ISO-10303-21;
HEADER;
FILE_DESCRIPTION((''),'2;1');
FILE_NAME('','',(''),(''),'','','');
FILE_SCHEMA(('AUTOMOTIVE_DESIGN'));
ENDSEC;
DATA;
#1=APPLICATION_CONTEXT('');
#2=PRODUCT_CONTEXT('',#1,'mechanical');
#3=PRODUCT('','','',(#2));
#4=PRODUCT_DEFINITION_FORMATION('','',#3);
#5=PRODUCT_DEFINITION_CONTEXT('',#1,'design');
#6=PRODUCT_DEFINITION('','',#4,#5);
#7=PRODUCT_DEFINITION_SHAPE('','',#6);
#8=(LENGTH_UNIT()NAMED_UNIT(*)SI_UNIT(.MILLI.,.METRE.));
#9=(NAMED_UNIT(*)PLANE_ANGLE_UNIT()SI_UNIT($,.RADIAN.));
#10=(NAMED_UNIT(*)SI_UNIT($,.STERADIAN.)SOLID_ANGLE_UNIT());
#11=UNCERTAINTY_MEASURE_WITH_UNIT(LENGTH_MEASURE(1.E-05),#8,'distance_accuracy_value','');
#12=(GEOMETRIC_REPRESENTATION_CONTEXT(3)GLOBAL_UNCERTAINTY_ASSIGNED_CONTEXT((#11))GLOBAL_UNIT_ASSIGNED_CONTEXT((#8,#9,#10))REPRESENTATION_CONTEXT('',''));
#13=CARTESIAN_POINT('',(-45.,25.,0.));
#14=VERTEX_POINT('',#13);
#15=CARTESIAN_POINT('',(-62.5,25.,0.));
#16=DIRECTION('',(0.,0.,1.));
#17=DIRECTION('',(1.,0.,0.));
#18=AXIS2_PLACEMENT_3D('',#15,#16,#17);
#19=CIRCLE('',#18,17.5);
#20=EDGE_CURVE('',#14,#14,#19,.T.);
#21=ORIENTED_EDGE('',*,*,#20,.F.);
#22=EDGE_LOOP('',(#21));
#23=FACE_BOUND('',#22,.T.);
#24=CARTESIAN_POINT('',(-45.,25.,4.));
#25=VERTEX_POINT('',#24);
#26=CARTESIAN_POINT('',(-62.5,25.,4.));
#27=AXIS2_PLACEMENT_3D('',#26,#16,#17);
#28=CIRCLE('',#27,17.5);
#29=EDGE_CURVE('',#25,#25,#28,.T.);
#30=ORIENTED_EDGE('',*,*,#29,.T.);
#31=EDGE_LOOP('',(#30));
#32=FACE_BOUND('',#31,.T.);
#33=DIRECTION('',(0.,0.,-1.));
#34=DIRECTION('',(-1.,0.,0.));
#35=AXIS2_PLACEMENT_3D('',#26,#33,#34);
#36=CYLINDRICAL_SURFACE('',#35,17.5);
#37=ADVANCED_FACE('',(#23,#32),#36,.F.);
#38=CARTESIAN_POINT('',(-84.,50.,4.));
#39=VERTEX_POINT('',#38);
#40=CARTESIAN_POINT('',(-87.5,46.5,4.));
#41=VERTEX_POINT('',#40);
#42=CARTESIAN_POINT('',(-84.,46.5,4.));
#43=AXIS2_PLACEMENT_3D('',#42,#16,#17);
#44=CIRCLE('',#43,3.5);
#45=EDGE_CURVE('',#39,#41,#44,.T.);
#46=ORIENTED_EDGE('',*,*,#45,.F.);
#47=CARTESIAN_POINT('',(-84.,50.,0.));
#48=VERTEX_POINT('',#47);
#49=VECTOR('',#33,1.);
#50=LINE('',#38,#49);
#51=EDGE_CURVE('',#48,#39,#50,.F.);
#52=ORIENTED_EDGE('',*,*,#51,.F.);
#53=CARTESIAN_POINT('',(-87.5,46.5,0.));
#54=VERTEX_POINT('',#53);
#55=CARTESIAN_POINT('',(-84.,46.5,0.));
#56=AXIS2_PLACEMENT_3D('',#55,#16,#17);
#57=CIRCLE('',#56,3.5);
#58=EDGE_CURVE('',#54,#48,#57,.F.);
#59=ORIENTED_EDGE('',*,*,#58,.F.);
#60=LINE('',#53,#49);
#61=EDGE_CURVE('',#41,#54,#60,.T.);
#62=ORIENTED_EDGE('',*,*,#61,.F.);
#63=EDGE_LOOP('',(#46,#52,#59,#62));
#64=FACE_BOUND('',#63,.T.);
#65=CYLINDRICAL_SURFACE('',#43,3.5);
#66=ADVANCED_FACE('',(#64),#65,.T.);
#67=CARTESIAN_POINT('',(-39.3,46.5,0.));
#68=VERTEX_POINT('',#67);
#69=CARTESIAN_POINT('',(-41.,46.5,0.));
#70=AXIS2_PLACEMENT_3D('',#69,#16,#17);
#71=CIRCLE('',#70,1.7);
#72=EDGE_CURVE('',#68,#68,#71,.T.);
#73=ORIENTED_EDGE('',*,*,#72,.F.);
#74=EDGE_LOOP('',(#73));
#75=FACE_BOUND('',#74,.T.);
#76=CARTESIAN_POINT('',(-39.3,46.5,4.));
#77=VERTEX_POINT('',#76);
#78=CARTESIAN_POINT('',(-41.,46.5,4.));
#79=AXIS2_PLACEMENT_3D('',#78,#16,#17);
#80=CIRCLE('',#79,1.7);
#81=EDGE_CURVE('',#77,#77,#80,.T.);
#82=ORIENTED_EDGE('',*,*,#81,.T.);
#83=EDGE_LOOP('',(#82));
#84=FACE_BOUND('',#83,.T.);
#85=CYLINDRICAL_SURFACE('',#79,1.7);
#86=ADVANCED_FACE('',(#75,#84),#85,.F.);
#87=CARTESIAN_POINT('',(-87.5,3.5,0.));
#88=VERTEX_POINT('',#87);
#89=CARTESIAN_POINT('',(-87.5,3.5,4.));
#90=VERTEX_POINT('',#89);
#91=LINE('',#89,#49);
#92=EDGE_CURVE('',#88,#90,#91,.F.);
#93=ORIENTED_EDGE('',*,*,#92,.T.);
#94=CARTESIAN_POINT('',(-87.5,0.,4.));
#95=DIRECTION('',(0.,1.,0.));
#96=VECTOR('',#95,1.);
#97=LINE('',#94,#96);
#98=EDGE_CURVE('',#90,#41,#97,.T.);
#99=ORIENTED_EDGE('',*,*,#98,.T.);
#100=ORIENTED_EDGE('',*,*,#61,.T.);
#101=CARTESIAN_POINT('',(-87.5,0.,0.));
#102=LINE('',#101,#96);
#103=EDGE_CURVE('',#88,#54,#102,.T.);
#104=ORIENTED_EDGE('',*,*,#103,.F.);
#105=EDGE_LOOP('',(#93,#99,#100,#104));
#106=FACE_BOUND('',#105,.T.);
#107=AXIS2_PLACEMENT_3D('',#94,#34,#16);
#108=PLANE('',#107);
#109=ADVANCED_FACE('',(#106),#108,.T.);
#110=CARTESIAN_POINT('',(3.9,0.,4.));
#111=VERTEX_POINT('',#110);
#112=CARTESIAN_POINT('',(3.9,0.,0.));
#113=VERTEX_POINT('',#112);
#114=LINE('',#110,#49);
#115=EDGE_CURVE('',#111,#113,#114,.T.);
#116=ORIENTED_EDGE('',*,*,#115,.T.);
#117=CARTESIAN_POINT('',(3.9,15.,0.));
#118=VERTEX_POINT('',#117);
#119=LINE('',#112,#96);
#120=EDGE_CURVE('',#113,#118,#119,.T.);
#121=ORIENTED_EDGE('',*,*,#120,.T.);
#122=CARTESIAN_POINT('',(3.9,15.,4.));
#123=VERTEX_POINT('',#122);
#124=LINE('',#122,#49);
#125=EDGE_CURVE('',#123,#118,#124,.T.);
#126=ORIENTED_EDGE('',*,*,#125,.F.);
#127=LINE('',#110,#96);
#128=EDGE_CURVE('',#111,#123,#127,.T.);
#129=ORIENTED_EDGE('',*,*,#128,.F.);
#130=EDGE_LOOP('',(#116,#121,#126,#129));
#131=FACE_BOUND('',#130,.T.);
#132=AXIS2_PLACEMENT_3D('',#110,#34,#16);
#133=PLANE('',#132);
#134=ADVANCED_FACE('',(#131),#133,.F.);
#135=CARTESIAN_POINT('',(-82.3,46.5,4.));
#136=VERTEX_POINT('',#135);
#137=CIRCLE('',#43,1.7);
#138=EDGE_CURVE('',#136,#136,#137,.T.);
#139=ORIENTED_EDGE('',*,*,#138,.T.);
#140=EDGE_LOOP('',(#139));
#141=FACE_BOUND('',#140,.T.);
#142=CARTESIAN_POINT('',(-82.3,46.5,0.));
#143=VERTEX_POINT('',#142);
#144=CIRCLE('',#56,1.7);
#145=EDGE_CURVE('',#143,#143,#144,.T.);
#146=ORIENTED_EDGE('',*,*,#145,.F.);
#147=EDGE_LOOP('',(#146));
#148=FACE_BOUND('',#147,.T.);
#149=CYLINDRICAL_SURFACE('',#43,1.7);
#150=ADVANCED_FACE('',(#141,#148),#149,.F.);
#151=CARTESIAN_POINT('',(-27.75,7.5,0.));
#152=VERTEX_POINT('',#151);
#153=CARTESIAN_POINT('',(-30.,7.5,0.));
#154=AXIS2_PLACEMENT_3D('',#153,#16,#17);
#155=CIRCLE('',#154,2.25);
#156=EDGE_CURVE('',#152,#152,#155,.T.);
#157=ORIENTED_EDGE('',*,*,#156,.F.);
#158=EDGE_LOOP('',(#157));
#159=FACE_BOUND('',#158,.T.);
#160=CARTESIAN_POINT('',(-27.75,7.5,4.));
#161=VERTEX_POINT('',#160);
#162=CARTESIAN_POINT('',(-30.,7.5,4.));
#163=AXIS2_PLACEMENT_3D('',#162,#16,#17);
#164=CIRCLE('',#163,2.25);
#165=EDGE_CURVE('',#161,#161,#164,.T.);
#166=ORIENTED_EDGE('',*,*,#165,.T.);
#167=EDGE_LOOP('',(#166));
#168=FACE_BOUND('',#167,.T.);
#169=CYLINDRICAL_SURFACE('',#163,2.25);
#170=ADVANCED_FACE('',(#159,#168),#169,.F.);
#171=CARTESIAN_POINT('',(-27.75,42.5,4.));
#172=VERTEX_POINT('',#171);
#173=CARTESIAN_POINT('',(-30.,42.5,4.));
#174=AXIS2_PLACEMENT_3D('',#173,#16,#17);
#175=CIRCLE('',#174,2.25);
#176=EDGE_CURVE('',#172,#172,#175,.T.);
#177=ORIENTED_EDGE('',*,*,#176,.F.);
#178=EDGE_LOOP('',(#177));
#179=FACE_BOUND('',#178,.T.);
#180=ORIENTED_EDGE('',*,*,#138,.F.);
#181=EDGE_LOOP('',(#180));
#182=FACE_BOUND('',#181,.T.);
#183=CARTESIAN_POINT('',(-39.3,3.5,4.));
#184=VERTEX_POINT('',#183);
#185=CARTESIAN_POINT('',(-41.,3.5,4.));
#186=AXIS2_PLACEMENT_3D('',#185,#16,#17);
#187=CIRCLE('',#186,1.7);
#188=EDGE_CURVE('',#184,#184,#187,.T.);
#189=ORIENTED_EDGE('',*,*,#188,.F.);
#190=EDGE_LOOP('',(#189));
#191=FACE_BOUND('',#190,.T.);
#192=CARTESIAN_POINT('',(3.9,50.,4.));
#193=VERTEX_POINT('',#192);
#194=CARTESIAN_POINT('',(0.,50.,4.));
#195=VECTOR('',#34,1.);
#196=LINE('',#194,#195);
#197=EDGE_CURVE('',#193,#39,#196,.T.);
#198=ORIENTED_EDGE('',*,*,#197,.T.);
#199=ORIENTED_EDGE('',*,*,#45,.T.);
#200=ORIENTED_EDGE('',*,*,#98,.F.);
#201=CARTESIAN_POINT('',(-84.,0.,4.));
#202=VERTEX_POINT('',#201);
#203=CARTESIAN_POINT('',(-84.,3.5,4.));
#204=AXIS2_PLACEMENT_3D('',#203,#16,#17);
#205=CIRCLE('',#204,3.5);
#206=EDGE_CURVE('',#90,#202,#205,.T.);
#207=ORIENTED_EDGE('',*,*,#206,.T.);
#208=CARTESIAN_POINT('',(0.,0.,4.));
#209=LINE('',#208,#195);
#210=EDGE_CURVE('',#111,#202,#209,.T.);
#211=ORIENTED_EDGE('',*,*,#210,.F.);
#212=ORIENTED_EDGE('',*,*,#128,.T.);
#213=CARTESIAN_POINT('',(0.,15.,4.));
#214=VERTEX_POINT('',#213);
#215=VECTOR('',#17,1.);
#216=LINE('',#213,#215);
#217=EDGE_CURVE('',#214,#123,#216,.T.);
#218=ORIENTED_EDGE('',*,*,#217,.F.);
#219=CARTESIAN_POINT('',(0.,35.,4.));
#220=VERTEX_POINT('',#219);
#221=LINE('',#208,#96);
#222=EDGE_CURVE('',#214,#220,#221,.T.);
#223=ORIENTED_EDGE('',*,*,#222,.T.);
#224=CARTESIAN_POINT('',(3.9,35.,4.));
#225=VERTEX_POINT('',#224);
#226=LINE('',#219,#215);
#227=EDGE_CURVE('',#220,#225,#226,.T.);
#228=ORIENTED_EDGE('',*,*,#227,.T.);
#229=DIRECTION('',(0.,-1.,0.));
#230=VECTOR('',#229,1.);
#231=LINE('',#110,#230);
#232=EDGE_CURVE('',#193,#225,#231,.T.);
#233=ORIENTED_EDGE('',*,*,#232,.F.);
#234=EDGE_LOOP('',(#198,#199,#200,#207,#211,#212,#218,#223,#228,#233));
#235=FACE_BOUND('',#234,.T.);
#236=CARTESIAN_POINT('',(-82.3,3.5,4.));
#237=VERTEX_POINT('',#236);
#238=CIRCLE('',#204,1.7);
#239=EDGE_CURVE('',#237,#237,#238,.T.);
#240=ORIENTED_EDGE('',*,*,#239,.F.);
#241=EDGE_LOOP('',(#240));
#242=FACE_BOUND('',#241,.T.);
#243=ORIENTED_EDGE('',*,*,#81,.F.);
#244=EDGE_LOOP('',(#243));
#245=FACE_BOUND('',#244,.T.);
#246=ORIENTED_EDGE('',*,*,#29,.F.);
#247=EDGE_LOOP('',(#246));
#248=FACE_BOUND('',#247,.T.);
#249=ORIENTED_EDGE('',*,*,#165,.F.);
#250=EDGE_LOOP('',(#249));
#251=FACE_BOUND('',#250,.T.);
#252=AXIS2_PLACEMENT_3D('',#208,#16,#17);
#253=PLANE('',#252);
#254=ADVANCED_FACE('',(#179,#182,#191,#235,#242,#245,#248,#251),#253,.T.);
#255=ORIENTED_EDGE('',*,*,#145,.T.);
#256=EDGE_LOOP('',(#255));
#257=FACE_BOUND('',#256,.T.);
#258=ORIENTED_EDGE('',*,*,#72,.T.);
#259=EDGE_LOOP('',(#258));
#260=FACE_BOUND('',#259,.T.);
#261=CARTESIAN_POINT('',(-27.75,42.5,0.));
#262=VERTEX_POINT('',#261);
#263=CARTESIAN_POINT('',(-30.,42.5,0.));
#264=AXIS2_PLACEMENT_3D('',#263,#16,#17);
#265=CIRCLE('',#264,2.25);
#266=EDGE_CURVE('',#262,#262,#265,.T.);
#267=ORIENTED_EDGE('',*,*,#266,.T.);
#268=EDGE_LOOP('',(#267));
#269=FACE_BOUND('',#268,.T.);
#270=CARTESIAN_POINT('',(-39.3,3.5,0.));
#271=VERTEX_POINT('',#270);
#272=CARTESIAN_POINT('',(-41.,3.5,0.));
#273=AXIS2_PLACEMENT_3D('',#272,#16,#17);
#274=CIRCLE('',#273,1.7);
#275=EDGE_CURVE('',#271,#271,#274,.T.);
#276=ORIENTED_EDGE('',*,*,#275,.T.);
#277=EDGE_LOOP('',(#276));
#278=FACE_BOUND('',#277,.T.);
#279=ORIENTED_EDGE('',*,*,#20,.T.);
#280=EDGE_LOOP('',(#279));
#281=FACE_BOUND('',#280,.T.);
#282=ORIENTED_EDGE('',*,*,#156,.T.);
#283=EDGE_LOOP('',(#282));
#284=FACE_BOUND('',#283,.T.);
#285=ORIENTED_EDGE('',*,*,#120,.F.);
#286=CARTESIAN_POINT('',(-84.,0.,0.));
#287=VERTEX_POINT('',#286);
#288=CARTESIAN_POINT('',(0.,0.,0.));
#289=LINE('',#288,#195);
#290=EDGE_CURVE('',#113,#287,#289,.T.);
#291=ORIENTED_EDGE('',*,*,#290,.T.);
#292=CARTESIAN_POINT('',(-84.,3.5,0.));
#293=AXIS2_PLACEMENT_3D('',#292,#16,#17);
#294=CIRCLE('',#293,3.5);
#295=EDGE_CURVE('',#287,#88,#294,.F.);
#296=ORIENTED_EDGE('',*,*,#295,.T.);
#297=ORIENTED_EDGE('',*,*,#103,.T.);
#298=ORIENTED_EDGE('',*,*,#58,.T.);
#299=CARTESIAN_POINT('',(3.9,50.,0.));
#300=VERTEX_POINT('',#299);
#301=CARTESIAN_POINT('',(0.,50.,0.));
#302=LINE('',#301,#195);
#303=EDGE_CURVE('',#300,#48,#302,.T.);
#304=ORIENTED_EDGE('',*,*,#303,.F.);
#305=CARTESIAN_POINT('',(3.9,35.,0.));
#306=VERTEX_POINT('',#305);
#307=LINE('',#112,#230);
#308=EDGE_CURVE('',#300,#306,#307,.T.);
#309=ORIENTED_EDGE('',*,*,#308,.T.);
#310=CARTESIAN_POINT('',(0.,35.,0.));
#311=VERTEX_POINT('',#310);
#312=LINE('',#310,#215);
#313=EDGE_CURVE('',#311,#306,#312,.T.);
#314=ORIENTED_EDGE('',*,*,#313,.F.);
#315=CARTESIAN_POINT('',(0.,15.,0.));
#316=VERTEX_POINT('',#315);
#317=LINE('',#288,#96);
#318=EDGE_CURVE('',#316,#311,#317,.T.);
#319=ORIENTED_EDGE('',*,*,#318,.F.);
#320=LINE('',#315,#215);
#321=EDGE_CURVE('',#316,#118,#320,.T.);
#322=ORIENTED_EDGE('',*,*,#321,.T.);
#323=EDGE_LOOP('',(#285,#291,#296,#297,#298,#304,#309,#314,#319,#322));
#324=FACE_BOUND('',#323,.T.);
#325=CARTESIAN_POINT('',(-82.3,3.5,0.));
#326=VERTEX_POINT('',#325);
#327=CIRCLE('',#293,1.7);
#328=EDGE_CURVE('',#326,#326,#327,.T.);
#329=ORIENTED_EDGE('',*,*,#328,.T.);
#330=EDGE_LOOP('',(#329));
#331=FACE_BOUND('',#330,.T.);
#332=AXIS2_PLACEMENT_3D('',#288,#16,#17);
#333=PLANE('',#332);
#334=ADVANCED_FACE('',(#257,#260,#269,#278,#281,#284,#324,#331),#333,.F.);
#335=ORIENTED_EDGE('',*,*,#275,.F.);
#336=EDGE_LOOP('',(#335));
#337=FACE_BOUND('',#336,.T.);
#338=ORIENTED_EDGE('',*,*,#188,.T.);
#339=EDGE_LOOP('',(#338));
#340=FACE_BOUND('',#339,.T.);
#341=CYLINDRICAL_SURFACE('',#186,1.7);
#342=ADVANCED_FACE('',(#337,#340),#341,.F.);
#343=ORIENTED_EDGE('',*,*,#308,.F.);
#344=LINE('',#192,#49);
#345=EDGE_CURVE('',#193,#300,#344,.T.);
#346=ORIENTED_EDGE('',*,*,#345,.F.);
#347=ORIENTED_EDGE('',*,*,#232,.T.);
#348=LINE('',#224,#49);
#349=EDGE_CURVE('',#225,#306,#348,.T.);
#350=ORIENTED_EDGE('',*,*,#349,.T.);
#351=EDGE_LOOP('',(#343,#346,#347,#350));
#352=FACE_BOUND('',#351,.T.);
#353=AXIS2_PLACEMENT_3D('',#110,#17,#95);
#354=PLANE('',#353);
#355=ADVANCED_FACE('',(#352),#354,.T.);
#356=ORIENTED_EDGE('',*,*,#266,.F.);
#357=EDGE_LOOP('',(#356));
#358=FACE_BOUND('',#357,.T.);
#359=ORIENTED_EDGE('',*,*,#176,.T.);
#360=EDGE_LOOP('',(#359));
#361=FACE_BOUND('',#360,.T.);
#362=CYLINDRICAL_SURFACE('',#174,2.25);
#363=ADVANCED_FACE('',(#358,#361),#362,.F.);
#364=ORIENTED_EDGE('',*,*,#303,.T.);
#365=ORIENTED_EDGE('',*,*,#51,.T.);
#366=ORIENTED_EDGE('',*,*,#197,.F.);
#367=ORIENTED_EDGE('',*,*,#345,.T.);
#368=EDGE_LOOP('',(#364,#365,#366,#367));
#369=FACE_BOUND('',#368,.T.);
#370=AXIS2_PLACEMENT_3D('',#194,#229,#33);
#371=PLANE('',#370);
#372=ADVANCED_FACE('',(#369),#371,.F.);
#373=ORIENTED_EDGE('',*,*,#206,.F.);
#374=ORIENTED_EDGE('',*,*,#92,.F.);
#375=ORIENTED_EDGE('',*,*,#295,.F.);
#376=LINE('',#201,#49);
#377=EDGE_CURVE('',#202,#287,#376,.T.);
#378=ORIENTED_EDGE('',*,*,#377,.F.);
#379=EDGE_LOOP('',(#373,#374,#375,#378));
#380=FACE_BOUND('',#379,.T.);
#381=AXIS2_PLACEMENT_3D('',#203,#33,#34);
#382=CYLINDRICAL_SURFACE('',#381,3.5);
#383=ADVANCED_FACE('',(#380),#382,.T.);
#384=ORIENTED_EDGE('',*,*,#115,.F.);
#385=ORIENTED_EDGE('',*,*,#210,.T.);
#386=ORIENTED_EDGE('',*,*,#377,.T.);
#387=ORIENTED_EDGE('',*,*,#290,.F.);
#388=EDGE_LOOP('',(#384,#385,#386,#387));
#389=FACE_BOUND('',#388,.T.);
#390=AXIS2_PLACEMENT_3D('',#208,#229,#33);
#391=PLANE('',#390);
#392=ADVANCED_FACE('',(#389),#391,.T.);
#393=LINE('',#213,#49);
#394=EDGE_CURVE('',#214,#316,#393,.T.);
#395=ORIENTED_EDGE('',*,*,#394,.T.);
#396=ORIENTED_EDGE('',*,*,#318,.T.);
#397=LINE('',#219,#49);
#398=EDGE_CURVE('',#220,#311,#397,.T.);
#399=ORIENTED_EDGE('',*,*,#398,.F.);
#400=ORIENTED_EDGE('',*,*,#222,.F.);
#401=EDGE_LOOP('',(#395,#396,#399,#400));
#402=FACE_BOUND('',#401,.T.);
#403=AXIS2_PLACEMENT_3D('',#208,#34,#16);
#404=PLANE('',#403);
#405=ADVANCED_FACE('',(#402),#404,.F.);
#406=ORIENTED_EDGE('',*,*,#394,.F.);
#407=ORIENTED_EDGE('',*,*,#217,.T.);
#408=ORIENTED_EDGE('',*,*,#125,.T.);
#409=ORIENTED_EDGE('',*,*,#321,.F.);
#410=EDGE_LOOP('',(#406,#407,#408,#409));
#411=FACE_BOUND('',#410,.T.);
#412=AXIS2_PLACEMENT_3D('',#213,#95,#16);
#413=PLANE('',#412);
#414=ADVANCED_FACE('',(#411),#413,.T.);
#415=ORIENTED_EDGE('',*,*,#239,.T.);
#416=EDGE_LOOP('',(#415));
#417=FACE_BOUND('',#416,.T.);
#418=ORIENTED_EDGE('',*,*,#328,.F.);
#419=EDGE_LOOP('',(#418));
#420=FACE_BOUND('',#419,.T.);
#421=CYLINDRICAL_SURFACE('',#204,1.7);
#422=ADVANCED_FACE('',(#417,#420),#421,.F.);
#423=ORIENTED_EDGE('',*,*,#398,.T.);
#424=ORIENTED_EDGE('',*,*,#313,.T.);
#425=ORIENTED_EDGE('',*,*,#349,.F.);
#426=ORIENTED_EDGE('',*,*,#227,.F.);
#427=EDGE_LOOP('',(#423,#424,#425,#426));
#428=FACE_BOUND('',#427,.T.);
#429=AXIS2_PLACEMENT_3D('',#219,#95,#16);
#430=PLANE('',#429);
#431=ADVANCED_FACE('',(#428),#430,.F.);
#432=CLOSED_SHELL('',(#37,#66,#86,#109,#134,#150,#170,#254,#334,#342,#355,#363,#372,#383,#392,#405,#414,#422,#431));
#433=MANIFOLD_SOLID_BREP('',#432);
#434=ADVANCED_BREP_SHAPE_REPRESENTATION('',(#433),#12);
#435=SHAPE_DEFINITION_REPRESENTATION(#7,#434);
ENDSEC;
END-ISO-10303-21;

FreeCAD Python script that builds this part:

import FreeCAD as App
import Part
import Sketcher
from FreeCAD import Vector
Q = App.Units.Quantity


def edges_at(feature, points):
    """Names of the edges that pass closest to the given points."""
    edges = feature.Shape.Edges
    near = lambda p: min(range(len(edges)), key=lambda i: edges[i].distToShape(Part.Vertex(*p))[0])
    return sorted({f"Edge{near(p) + 1}" for p in points})


def add_polygon(sketch, points):
    """Adds a closed chain of lines whose ends are joined by coincident constraints."""
    first, n = sketch.GeometryCount, len(points)
    for a, b in zip(points, points[1:] + points[:1]):
        sketch.addGeometry(Part.LineSegment(App.Vector(*a, 0), App.Vector(*b, 0)), False)
    for i in range(n):
        sketch.addConstraint(Sketcher.Constraint("Coincident", first + i, 2, first + (i + 1) % n, 1))

doc = App.newDocument("Part")
body = doc.addObject("PartDesign::Body", "Body")

# Sketch on XY plane
sketch1 = body.newObject("Sketcher::SketchObject", "Sketch")
sketch1.AttachmentSupport = (doc.getObject("XY_Plane"), [""])
sketch1.MapMode = "FlatFace"
add_polygon(sketch1, [(-87.5, 0), (3.9, 0), (3.9, 15), (0, 15), (0, 35), (3.9, 35), (3.9, 50), (-87.5, 50)])  # lines 0-7
sketch1.addGeometry(Part.Circle(Vector(-62.5, 25, 0), Vector(0, 0, 1), 17.5), False)  # 8
sketch1.addConstraint([
    Sketcher.Constraint("Horizontal", 0),
    Sketcher.Constraint("Vertical", 1),
    Sketcher.Constraint("Horizontal", 2),
    Sketcher.Constraint("Vertical", 3),
    Sketcher.Constraint("Horizontal", 4),
    Sketcher.Constraint("Vertical", 5),
    Sketcher.Constraint("Horizontal", 6),
    Sketcher.Constraint("Vertical", 7),
    Sketcher.Constraint("PointOnObject", 0, 2, -1),
    Sketcher.Constraint("PointOnObject", 2, 2, -2),
    Sketcher.Constraint("Vertical", 1, 2, 4, 2),
    Sketcher.Constraint("Equal", 1, 5),
    Sketcher.Constraint("Diameter", 8, Q("35 mm")),
    Sketcher.Constraint("DistanceY", 1, 1, 1, 2, Q("15 mm")),
    Sketcher.Constraint("DistanceY", 3, 1, 3, 2, Q("20 mm")),
    Sketcher.Constraint("DistanceX", 0, 1, 0, 2, Q("91.4 mm")),
    Sketcher.Constraint("DistanceX", 2, 2, 2, 1, Q("3.9 mm")),
    Sketcher.Constraint("DistanceY", -1, 1, 8, 3, Q("25 mm")),
    Sketcher.Constraint("DistanceX", 6, 2, 8, 3, Q("25 mm")),
])
pad1 = body.newObject("PartDesign::Pad", "Pad")
pad1.Profile = sketch1
pad1.Length = 4

# Sketch on XY plane
sketch2 = body.newObject("Sketcher::SketchObject", "Sketch001")
sketch2.AttachmentSupport = (doc.getObject("XY_Plane"), [""])
sketch2.MapMode = "FlatFace"
sketch2.AttachmentOffset = App.Placement(Vector(0, 0, 4), App.Rotation())
sketch2.addGeometry([
    Part.Circle(Vector(-84, 3.5, 0), Vector(0, 0, 1), 1.7),
    Part.Circle(Vector(-84, 46.5, 0), Vector(0, 0, 1), 1.7),
    Part.Circle(Vector(-41, 46.5, 0), Vector(0, 0, 1), 1.7),
    Part.Circle(Vector(-41, 3.5, 0), Vector(0, 0, 1), 1.7),
], False)
sketch2.addConstraint([
    Sketcher.Constraint("Equal", 0, 1),
    Sketcher.Constraint("Equal", 1, 2),
    Sketcher.Constraint("Equal", 2, 3),
    Sketcher.Constraint("Horizontal", 1, 3, 2, 3),
    Sketcher.Constraint("Horizontal", 0, 3, 3, 3),
    Sketcher.Constraint("Vertical", 0, 3, 1, 3),
    Sketcher.Constraint("Vertical", 2, 3, 3, 3),
    Sketcher.Constraint("Diameter", 0, Q("3.4 mm")),
    Sketcher.Constraint("DistanceX", 0, 3, -1, 1, Q("84 mm")),
    Sketcher.Constraint("DistanceX", 2, 3, -1, 1, Q("41 mm")),
    Sketcher.Constraint("DistanceY", 0, 3, 1, 3, Q("43 mm")),
    Sketcher.Constraint("DistanceY", -1, 1, 0, 3, Q("3.5 mm")),
])
doc.recompute()
hole = body.newObject("PartDesign::Hole", "Hole")
hole.Profile = sketch2
hole.ThreadType = "None"
hole.Diameter = 3.4
hole.DepthType = "ThroughAll"

# Sketch on XY plane
sketch3 = body.newObject("Sketcher::SketchObject", "Sketch002")
sketch3.AttachmentSupport = (doc.getObject("XY_Plane"), [""])
sketch3.MapMode = "FlatFace"
sketch3.AttachmentOffset = App.Placement(Vector(0, 0, 4), App.Rotation())
sketch3.addGeometry([
    Part.Circle(Vector(-30, 42.5, 0), Vector(0, 0, 1), 2.2),
    Part.Circle(Vector(-30, 7.5, 0), Vector(0, 0, 1), 2.2),
], False)
sketch3.addConstraint([
    Sketcher.Constraint("Equal", 0, 1),
    Sketcher.Constraint("Vertical", 0, 3, 1, 3),
    Sketcher.Constraint("Diameter", 0, Q("4.5 mm")),
    Sketcher.Constraint("DistanceX", 0, 3, -1, 1, Q("30 mm")),
    Sketcher.Constraint("DistanceY", 1, 3, 0, 3, Q("35 mm")),
    Sketcher.Constraint("DistanceY", -1, 1, 0, 3, Q("42.5 mm")),
])
doc.recompute()
hole2 = body.newObject("PartDesign::Hole", "Hole001")
hole2.Profile = sketch3
hole2.ThreadType = "None"
hole2.Diameter = 4.5
hole2.DepthType = "ThroughAll"
doc.recompute()

fillet = body.newObject("PartDesign::Fillet", "Fillet")
fillet.Base = (hole2, edges_at(hole2, [(-87.5, 0, 2), (-87.5, 50, 2)]))
fillet.Radius = 3.5

doc.recompute()
